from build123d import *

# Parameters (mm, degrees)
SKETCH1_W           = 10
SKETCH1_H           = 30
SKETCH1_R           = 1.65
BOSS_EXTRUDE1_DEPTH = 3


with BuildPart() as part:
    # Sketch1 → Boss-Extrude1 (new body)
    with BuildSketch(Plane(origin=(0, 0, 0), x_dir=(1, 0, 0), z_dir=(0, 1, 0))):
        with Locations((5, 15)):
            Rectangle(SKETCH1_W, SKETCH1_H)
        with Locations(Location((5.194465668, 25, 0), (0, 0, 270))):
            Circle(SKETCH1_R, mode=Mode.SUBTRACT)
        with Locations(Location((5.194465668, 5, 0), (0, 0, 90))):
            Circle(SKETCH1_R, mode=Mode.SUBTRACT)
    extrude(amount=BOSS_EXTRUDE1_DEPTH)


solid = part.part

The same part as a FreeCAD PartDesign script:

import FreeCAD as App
import Part
import Sketcher

V = App.Vector
Q = App.Units.Quantity

doc = App.newDocument("Part")
params = doc.addObject("Spreadsheet::Sheet", "Params")
for row, (alias, value) in enumerate([
    ("sketch1_diameter", "3.3 mm"),
    ("sketch1_width", "10 mm"),
    ("sketch1_height", "30 mm"),
    ("pad1_length", "3 mm"),
], start=1):
    params.set(f"A{row}", alias)
    params.set(f"B{row}", "=" + value)
    params.setAlias(f"B{row}", alias)

body = doc.addObject("PartDesign::Body", "Body")

# Sketch on XZ plane
sketch1 = doc.addObject("Sketcher::SketchObject", "Sketch")
body.addObject(sketch1)
sketch1.AttachmentSupport = (doc.XZ_Plane, [""])
sketch1.MapMode = "FlatFace"
sketch1.addGeometry(Part.LineSegment(V(0, -30, 0), V(0, 0, 0)), False)
sketch1.addGeometry(Part.LineSegment(V(0, 0, 0), V(10, 0, 0)), False)
sketch1.addGeometry(Part.LineSegment(V(10, 0, 0), V(10, -30, 0)), False)
sketch1.addGeometry(Part.LineSegment(V(10, -30, 0), V(0, -30, 0)), False)
sketch1.addGeometry(Part.Circle(V(5.2, -5, 0), V(0, 0, 1), 1.6), False)
sketch1.addGeometry(Part.Circle(V(5.2, -25, 0), V(0, 0, 1), 1.6), False)
sketch1.addConstraint(Sketcher.Constraint("Coincident", 0, 2, 1, 1))
sketch1.addConstraint(Sketcher.Constraint("Coincident", 1, 2, 2, 1))
sketch1.addConstraint(Sketcher.Constraint("Coincident", 2, 2, 3, 1))
sketch1.addConstraint(Sketcher.Constraint("Coincident", 3, 2, 0, 1))
sketch1.addConstraint(Sketcher.Constraint("Vertical", 0))
sketch1.addConstraint(Sketcher.Constraint("Horizontal", 1))
sketch1.addConstraint(Sketcher.Constraint("Vertical", 2))
sketch1.addConstraint(Sketcher.Constraint("Horizontal", 3))
sketch1.addConstraint(Sketcher.Constraint("Coincident", 0, 2, -1, 1))
sketch1.addConstraint(Sketcher.Constraint("Equal", 4, 5))
sketch1.addConstraint(Sketcher.Constraint("Vertical", 4, 3, 5, 3))
sketch1.addConstraint(Sketcher.Constraint("Diameter", 4, Q("3.3 mm")))
sketch1.addConstraint(Sketcher.Constraint("DistanceX", 1, 1, 1, 2, Q("10 mm")))
sketch1.addConstraint(Sketcher.Constraint("DistanceY", 0, 1, 0, 2, Q("30 mm")))
sketch1.addConstraint(Sketcher.Constraint("DistanceY", 4, 3, -1, 1, Q("5 mm")))
sketch1.addConstraint(Sketcher.Constraint("DistanceY", 5, 3, -1, 1, Q("25 mm")))
sketch1.addConstraint(Sketcher.Constraint("DistanceX", -1, 1, 4, 3, Q("5.194466 mm")))
sketch1.setExpression("Constraints[11]", "Params.sketch1_diameter")
sketch1.setExpression("Constraints[12]", "Params.sketch1_width")
sketch1.setExpression("Constraints[13]", "Params.sketch1_height")
pad1 = doc.addObject("PartDesign::Pad", "Pad")
body.addObject(pad1)
pad1.Profile = sketch1
pad1.setExpression("Length", "Params.pad1_length")
pad1.Reversed = True

doc.recompute()
